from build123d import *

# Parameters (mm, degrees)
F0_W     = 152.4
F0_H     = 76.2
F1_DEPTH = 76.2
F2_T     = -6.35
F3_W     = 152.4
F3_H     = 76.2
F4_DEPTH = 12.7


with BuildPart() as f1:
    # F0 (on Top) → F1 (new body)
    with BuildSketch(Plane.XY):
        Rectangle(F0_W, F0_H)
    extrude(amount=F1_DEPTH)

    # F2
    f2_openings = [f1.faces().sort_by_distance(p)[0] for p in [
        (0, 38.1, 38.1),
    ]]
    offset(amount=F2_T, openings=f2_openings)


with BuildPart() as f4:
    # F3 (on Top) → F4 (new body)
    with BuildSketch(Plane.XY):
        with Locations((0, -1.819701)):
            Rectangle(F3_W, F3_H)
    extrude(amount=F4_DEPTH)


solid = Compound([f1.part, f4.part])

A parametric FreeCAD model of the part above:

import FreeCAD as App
import Part
import Sketcher

V = App.Vector
Q = App.Units.Quantity


def faces_at(feature, points):
    """Names of the faces that lie closest to the given points."""
    faces = feature.Shape.Faces
    near = lambda p: min(range(len(faces)), key=lambda i: faces[i].distToShape(Part.Vertex(*p))[0])
    return sorted({f"Face{near(p) + 1}" for p in points})

doc = App.newDocument("Part")
body = doc.addObject("PartDesign::Body", "Body")

# Sketch on XY plane
sketch1 = body.newObject("Sketcher::SketchObject", "Sketch")
sketch1.AttachmentSupport = (doc.getObject("XY_Plane"), [""])
sketch1.MapMode = "FlatFace"
sketch1.addGeometry(Part.LineSegment(V(-76.2, 38.1, 0), V(-76.2, -38.1, 0)), False)
sketch1.addGeometry(Part.LineSegment(V(-76.2, -38.1, 0), V(76.2, -38.1, 0)), False)
sketch1.addGeometry(Part.LineSegment(V(76.2, -38.1, 0), V(76.2, 38.1, 0)), False)
sketch1.addGeometry(Part.LineSegment(V(76.2, 38.1, 0), V(-76.2, 38.1, 0)), False)
sketch1.addConstraint(Sketcher.Constraint("Coincident", 0, 2, 1, 1))
sketch1.addConstraint(Sketcher.Constraint("Coincident", 1, 2, 2, 1))
sketch1.addConstraint(Sketcher.Constraint("Coincident", 2, 2, 3, 1))
sketch1.addConstraint(Sketcher.Constraint("Coincident", 3, 2, 0, 1))
sketch1.addConstraint(Sketcher.Constraint("Vertical", 0))
sketch1.addConstraint(Sketcher.Constraint("Horizontal", 1))
sketch1.addConstraint(Sketcher.Constraint("Vertical", 2))
sketch1.addConstraint(Sketcher.Constraint("Horizontal", 3))
sketch1.addConstraint(Sketcher.Constraint("Symmetric", 0, 2, 2, 2, -1, 1))
sketch1.addConstraint(Sketcher.Constraint("DistanceX", 1, 1, 1, 2, Q("6 in")))
sketch1.addConstraint(Sketcher.Constraint("DistanceY", 0, 2, 0, 1, Q("3 in")))
pad1 = body.newObject("PartDesign::Pad", "Pad")
pad1.Profile = sketch1
pad1.Length = Q("3 in")
doc.recompute()

thickness = body.newObject("PartDesign::Thickness", "Thickness")
thickness.Base = (pad1, faces_at(pad1, [(0, 38.1, 38.1)]))
thickness.Value = Q("0.25 in")
thickness.Reversed = True
thickness.Join = "Arc"
body2 = doc.addObject("PartDesign::Body", "Body001")

# Sketch on XY plane
sketch2 = body2.newObject("Sketcher::SketchObject", "Sketch001")
sketch2.AttachmentSupport = (doc.getObject("XY_Plane001"), [""])
sketch2.MapMode = "FlatFace"
sketch2.addGeometry(Part.LineSegment(V(-76.2, 36.280299, 0), V(-76.2, -39.919701, 0)), False)
sketch2.addGeometry(Part.LineSegment(V(-76.2, -39.919701, 0), V(76.2, -39.919701, 0)), False)
sketch2.addGeometry(Part.LineSegment(V(76.2, -39.919701, 0), V(76.2, 36.280299, 0)), False)
sketch2.addGeometry(Part.LineSegment(V(76.2, 36.280299, 0), V(-76.2, 36.280299, 0)), False)
sketch2.addConstraint(Sketcher.Constraint("Coincident", 0, 2, 1, 1))
sketch2.addConstraint(Sketcher.Constraint("Coincident", 1, 2, 2, 1))
sketch2.addConstraint(Sketcher.Constraint("Coincident", 2, 2, 3, 1))
sketch2.addConstraint(Sketcher.Constraint("Coincident", 3, 2, 0, 1))
sketch2.addConstraint(Sketcher.Constraint("Vertical", 0))
sketch2.addConstraint(Sketcher.Constraint("Horizontal", 1))
sketch2.addConstraint(Sketcher.Constraint("Vertical", 2))
sketch2.addConstraint(Sketcher.Constraint("Horizontal", 3))
sketch2.addConstraint(Sketcher.Constraint("DistanceX", 1, 1, 1, 2, Q("6 in")))
sketch2.addConstraint(Sketcher.Constraint("DistanceY", 0, 2, 0, 1, Q("3 in")))
sketch2.addConstraint(Sketcher.Constraint("DistanceX", 0, 2, -1, 1, Q("3 in")))
sketch2.addConstraint(Sketcher.Constraint("DistanceY", 0, 2, -1, 1, 39.919701))
pad2 = body2.newObject("PartDesign::Pad", "Pad001")
pad2.Profile = sketch2
pad2.Length = Q("0.5 in")

doc.recompute()
